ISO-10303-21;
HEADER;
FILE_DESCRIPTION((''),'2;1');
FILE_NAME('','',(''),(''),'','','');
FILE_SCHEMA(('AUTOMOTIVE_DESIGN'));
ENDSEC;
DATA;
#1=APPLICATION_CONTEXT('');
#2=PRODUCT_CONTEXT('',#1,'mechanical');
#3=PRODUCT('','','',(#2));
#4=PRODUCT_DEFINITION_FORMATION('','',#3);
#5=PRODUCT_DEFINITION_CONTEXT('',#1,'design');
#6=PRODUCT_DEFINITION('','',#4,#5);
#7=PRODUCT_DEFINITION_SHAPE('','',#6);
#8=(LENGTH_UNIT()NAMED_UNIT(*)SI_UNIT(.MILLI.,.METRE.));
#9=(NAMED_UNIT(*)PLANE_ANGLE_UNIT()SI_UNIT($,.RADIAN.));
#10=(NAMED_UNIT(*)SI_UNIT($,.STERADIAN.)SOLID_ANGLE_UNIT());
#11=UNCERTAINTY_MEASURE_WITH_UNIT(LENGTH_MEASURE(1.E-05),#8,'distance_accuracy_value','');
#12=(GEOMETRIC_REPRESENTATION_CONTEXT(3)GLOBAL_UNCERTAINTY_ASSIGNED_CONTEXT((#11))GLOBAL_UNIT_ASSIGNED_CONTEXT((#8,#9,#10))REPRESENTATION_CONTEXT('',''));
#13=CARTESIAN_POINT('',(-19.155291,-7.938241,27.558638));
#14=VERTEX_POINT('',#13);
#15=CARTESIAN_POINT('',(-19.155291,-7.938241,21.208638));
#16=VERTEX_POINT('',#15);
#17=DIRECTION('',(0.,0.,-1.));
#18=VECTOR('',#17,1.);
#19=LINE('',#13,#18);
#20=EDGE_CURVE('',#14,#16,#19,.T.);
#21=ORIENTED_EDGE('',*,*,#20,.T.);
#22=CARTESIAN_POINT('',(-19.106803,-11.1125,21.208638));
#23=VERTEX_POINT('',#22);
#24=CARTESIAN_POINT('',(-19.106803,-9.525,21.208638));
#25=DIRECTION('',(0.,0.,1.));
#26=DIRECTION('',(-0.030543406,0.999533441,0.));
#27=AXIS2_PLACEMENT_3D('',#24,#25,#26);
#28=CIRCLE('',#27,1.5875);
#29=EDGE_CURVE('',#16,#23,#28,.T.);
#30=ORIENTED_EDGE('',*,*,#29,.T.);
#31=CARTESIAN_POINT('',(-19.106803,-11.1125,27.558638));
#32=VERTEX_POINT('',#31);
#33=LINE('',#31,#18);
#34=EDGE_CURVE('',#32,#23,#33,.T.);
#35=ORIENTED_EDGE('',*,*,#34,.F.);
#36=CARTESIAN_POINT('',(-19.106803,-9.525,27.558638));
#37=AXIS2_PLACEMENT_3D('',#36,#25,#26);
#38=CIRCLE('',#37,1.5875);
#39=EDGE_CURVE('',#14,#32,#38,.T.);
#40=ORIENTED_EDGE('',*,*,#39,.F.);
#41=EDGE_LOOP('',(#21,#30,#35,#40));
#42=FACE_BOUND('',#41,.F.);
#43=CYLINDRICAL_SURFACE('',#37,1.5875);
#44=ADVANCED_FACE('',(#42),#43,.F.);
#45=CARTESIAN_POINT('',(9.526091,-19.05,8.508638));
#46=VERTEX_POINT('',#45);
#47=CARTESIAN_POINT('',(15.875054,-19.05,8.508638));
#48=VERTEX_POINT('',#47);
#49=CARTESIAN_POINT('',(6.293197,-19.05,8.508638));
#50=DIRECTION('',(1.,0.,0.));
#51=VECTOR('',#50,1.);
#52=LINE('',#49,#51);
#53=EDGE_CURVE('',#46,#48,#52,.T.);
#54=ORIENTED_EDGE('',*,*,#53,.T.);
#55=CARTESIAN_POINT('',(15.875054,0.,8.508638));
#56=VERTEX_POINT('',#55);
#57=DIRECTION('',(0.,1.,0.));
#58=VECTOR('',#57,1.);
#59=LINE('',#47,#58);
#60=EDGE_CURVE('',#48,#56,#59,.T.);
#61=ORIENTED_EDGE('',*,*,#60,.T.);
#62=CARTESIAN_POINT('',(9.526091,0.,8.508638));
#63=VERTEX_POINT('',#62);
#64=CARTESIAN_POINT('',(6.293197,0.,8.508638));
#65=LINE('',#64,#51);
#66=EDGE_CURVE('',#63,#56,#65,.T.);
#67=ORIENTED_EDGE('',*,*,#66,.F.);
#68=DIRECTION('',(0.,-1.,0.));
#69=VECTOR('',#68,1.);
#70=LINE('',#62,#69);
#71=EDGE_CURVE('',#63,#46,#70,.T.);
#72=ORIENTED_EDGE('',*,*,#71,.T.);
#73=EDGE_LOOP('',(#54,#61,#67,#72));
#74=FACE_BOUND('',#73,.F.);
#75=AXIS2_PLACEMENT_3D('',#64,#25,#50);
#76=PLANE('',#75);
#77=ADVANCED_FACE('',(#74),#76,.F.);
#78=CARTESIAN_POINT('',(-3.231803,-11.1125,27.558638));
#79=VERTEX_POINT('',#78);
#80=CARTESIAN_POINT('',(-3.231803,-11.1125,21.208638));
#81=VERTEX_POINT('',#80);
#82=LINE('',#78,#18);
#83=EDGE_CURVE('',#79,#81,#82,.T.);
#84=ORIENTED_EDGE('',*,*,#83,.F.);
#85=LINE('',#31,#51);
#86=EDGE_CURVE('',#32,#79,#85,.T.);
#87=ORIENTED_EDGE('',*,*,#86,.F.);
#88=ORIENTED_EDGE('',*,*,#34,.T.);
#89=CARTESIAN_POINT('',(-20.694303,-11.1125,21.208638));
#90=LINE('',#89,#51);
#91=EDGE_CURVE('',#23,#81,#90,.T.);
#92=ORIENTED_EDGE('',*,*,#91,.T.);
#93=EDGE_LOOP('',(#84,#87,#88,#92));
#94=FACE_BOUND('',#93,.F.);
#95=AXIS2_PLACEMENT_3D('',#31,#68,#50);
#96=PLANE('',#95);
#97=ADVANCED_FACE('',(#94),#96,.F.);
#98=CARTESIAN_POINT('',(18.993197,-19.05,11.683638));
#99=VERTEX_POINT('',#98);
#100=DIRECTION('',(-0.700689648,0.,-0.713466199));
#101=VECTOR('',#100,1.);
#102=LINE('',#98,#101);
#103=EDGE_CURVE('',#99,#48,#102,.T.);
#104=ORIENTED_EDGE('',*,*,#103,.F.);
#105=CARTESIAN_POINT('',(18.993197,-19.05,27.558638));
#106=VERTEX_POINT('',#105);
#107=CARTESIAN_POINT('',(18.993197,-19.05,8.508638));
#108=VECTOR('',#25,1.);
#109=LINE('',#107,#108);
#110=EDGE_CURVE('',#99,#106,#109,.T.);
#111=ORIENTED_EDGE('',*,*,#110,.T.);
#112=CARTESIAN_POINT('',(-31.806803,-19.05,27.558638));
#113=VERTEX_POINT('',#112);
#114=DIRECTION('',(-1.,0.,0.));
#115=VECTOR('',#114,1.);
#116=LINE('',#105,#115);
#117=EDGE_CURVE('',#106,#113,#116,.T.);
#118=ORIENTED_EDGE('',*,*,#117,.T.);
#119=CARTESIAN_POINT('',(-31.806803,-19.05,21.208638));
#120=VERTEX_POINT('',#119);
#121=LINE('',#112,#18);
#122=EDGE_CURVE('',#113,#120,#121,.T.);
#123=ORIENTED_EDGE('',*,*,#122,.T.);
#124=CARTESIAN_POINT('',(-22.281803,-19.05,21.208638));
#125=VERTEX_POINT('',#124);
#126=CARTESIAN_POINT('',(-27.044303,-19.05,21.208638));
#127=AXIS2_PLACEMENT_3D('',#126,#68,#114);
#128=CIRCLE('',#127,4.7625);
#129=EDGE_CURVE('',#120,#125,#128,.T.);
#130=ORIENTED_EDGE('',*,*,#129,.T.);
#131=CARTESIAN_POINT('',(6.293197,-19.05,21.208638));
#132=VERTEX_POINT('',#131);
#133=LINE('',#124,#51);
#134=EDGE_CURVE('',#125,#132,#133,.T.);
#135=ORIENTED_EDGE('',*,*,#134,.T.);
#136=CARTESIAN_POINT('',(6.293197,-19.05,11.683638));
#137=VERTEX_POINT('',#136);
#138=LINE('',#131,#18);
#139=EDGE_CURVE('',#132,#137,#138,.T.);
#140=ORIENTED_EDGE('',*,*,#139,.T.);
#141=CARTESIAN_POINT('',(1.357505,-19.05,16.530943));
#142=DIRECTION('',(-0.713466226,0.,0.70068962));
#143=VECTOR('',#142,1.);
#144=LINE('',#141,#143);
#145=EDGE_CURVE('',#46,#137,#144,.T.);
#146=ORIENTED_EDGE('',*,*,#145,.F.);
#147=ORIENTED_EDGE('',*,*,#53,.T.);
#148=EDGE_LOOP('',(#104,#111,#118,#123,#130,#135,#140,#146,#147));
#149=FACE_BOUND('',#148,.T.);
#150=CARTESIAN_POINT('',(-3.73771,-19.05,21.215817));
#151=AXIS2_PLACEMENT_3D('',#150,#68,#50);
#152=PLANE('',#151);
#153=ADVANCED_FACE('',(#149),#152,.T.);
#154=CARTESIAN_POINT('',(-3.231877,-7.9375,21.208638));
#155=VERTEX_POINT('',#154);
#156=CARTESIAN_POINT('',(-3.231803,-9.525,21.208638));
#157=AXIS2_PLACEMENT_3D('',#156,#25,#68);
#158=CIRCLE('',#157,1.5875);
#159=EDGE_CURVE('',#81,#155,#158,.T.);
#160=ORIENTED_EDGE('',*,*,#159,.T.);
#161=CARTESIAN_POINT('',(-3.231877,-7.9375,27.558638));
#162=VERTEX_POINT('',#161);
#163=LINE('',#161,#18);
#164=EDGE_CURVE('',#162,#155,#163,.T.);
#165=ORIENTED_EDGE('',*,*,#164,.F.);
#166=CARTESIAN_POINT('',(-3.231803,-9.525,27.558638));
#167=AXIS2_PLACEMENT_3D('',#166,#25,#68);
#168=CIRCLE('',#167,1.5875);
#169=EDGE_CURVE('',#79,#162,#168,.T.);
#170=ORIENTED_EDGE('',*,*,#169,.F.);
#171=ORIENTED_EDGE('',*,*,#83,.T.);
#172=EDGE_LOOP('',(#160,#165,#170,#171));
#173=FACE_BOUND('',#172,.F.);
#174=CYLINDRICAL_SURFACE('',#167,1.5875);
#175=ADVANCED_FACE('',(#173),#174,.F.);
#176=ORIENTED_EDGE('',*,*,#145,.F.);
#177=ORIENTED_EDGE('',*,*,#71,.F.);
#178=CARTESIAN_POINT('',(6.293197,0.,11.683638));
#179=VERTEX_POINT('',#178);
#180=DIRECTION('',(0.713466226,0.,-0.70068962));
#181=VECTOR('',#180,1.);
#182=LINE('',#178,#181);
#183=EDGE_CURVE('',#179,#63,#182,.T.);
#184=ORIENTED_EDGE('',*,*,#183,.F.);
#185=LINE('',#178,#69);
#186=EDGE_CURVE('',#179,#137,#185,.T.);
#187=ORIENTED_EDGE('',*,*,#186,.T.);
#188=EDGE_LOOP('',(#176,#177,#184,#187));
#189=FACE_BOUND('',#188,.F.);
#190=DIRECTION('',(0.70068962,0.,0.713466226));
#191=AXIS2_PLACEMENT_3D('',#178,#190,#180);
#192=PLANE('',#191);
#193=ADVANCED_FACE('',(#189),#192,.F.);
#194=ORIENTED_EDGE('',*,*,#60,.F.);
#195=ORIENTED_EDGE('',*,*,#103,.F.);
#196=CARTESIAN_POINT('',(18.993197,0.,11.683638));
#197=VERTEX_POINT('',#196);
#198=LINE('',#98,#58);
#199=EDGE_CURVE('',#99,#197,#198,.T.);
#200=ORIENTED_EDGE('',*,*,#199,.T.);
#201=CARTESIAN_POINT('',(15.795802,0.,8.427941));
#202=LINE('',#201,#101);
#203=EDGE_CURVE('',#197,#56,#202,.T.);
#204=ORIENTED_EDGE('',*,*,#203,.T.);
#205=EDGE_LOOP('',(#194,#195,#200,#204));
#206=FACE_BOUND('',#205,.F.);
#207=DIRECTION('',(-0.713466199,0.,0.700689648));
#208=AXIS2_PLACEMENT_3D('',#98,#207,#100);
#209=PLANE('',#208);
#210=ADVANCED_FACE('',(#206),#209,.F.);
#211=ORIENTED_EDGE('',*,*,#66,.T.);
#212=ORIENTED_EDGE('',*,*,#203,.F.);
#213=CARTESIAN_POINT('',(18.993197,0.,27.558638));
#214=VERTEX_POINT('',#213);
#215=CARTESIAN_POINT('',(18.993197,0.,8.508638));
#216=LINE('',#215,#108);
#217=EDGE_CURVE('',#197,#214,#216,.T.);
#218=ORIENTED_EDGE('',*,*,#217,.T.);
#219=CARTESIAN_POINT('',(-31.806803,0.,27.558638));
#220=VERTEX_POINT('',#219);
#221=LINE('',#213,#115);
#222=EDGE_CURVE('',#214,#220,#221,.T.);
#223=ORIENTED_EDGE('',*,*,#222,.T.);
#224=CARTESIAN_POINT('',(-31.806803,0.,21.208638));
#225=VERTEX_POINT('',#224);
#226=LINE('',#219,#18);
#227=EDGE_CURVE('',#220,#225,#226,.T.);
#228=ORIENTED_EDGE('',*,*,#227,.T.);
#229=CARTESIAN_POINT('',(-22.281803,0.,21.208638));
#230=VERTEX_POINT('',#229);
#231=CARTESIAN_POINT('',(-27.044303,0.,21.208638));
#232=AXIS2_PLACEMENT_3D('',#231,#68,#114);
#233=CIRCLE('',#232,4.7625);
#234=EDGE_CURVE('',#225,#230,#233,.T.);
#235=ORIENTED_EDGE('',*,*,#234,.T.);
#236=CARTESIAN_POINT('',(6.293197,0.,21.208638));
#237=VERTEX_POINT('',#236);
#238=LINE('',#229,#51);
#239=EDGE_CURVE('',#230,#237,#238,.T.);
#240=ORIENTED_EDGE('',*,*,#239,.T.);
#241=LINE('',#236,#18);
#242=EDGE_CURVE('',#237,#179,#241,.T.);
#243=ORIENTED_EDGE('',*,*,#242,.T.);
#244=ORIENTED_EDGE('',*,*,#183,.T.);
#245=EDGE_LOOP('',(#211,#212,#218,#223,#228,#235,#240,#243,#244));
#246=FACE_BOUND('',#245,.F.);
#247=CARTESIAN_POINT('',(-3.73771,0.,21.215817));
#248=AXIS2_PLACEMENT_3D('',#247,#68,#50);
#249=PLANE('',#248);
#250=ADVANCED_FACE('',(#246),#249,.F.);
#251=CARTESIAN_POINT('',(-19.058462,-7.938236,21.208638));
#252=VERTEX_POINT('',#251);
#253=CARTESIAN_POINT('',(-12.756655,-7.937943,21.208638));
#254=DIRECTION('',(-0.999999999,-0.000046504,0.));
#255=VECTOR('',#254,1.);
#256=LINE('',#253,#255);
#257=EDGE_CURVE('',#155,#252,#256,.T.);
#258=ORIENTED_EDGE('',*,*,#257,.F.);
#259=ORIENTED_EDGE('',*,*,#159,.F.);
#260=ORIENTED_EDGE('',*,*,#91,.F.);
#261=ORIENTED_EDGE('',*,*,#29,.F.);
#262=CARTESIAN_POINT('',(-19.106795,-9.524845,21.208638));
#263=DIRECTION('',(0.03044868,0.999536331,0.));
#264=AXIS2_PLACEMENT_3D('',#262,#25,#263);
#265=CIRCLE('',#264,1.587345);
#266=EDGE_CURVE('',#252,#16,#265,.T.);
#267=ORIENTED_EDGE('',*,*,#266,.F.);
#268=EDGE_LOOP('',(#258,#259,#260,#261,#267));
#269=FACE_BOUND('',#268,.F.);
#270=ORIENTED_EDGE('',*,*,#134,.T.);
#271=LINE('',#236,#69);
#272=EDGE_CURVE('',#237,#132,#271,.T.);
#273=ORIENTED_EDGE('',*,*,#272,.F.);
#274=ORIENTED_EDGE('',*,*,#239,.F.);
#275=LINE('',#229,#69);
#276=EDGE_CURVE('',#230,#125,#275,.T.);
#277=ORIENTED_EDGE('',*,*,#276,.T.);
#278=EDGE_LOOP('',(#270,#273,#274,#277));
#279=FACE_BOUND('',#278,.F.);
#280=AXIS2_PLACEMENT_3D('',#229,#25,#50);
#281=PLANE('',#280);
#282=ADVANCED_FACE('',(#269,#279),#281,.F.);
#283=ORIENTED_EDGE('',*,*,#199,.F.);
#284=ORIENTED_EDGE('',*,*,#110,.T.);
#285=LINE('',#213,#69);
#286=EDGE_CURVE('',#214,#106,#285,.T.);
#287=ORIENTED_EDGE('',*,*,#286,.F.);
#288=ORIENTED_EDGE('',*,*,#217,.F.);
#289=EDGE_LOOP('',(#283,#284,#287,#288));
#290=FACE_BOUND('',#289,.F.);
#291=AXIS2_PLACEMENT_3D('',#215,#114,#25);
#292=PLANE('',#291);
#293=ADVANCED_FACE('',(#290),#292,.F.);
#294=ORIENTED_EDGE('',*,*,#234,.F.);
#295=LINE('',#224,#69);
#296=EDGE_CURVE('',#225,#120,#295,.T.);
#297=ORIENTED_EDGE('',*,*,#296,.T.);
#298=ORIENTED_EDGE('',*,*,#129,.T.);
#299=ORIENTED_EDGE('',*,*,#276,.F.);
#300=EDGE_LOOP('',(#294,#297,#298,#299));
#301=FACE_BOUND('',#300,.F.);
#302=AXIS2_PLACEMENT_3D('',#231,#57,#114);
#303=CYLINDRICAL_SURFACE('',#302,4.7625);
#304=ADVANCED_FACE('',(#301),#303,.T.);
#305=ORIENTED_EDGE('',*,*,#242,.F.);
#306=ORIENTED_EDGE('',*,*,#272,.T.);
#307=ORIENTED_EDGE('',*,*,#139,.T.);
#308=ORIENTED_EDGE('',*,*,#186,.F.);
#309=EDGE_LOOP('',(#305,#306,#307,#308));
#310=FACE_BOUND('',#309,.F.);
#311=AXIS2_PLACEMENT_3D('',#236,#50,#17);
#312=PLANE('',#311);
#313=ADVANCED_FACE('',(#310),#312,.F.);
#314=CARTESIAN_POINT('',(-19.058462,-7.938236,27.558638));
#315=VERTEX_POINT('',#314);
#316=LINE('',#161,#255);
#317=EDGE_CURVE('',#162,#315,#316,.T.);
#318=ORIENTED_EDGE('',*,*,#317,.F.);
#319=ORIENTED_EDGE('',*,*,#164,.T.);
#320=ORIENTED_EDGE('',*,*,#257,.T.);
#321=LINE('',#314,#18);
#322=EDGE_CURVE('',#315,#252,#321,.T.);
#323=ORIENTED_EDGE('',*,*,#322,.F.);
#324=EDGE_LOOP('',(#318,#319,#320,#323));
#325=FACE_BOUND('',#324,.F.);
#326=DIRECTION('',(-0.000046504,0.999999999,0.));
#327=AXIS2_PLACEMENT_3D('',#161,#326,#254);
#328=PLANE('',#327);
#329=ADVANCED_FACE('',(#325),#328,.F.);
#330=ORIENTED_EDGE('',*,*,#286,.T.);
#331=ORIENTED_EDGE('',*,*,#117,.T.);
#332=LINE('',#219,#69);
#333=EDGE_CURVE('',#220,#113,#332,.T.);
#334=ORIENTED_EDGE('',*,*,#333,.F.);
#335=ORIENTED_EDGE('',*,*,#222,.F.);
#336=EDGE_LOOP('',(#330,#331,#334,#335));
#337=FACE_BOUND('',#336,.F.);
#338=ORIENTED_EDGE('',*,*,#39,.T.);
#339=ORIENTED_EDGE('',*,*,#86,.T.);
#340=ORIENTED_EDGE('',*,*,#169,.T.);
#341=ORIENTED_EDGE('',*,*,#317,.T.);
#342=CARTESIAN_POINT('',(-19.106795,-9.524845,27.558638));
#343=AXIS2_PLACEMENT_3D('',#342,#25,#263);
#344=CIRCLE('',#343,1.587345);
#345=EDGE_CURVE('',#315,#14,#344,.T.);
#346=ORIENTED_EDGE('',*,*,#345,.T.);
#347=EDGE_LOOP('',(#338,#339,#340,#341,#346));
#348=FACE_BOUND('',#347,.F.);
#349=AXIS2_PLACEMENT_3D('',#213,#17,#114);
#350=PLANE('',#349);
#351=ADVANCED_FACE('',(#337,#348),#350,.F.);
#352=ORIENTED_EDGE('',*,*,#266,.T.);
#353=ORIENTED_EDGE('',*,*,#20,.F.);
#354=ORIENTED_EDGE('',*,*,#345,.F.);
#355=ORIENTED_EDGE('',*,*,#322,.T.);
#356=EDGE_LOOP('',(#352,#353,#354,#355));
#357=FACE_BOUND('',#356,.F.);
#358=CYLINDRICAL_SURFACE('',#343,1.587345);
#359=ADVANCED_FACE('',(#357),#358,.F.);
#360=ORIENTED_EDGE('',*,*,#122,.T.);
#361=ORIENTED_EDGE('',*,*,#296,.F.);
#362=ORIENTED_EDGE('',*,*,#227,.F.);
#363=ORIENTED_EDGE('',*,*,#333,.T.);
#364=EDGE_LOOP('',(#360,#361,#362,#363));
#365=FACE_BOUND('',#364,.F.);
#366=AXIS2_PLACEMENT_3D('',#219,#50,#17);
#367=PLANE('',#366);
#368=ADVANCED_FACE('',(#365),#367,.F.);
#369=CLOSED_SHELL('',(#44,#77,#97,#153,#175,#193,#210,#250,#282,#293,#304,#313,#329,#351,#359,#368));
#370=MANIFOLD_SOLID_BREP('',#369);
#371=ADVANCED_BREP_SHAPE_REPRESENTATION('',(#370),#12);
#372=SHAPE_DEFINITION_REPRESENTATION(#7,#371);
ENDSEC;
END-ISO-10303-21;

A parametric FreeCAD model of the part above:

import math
import FreeCAD as App
import Part
import Sketcher
from FreeCAD import Vector
Q = App.Units.Quantity

doc = App.newDocument("Part")
body = doc.addObject("PartDesign::Body", "Body")

sketch1 = body.newObject("Sketcher::SketchObject", "Sketch")
sketch1.AttachmentSupport = (doc.getObject("XZ_Plane"), [""])
sketch1.MapMode = "FlatFace"
sketch1.addGeometry([
    Part.LineSegment(Vector(18.993197, 27.558638, 0), Vector(-31.806803, 27.558638, 0)),
    Part.LineSegment(Vector(-31.806803, 27.558638, 0), Vector(-31.806803, 21.208638, 0)),
    Part.ArcOfCircle(Part.Circle(Vector(-27.044303, 21.208638, 0), Vector(0, 0, 1), 4.7625), math.radians(180), math.radians(360)),
    Part.LineSegment(Vector(-22.281803, 21.208638, 0), Vector(6.293197, 21.208638, 0)),
    Part.LineSegment(Vector(6.293197, 21.208638, 0), Vector(6.293197, 8.508638, 0)),
    Part.LineSegment(Vector(6.293197, 8.508638, 0), Vector(18.993197, 8.508638, 0)),
    Part.LineSegment(Vector(18.993197, 8.508638, 0), Vector(18.993197, 27.558638, 0)),
], False)
sketch1.addConstraint([
    Sketcher.Constraint("Coincident", 0, 2, 1, 1),
    Sketcher.Constraint("Tangent", 1, 2, 2, 1),
    Sketcher.Constraint("Coincident", 2, 2, 3, 1),
    Sketcher.Constraint("Coincident", 3, 2, 4, 1),
    Sketcher.Constraint("Coincident", 4, 2, 5, 1),
    Sketcher.Constraint("Coincident", 5, 2, 6, 1),
    Sketcher.Constraint("Coincident", 6, 2, 0, 1),
    Sketcher.Constraint("Horizontal", 0),
    Sketcher.Constraint("Vertical", 1),
    Sketcher.Constraint("Horizontal", 3),
    Sketcher.Constraint("Vertical", 4),
    Sketcher.Constraint("Horizontal", 5),
    Sketcher.Constraint("Vertical", 6),
    Sketcher.Constraint("Horizontal", 1, 2, 2, 2),
    Sketcher.Constraint("Equal", 5, 4),
    Sketcher.Constraint("DistanceX", 0, 2, 0, 1, Q("2 in")),
    Sketcher.Constraint("DistanceX", 5, 1, 5, 2, Q("0.5 in")),
    Sketcher.Constraint("Radius", 2, Q("0.1875 in")),
    Sketcher.Constraint("DistanceY", 1, 2, 1, 1, Q("0.25 in")),
    Sketcher.Constraint("DistanceY", -1, 1, 2, 3, Q("21.208638 mm")),
    Sketcher.Constraint("DistanceX", 2, 3, -1, 1, Q("27.044303 mm")),
])
pad1 = body.newObject("PartDesign::Pad", "Pad")
pad1.Profile = sketch1
pad1.Length = Q("0.75 in")

sketch2 = body.newObject("Sketcher::SketchObject", "Sketch001")
sketch2.AttachmentSupport = (doc.getObject("XY_Plane"), [""])
sketch2.MapMode = "FlatFace"
sketch2.AttachmentOffset = App.Placement(Vector(0, 0, 27.558638), App.Rotation())
sketch2.addGeometry([
    Part.ArcOfCircle(Part.Circle(Vector(-19.106795, -9.524845, 0), Vector(0, 0, 1), 1.587345), math.radians(88.255149), math.radians(91.750768)),
    Part.ArcOfCircle(Part.Circle(Vector(-19.106803, -9.525, 0), Vector(0, 0, 1), 1.5875), math.radians(91.75028), math.radians(270.000013)),
    Part.LineSegment(Vector(-19.106803, -11.1125, 0), Vector(-3.231803, -11.1125, 0)),
    Part.ArcOfCircle(Part.Circle(Vector(-3.231803, -9.525, 0), Vector(0, 0, 1), 1.5875), math.radians(-90), math.radians(90.002671)),
    Part.LineSegment(Vector(-3.231877, -7.9375, 0), Vector(-19.058462, -7.938236, 0)),
], False)
sketch2.addConstraint([
    Sketcher.Constraint("Coincident", 0, 2, 1, 1),
    Sketcher.Constraint("Tangent", 1, 2, 2, 1),
    Sketcher.Constraint("Tangent", 2, 2, 3, 1),
    Sketcher.Constraint("Tangent", 3, 2, 4, 1),
    Sketcher.Constraint("Coincident", 4, 2, 0, 1),
    Sketcher.Constraint("Horizontal", 2),
    Sketcher.Constraint("Equal", 1, 3),
    Sketcher.Constraint("Radius", 1, Q("0.0625 in")),
    Sketcher.Constraint("DistanceX", 2, 1, 2, 2, Q("0.625 in")),
    Sketcher.Constraint("DistanceY", 1, 3, -1, 1, Q("0.375 in")),
    Sketcher.Constraint("Radius", 0, Q("1.587345 mm")),
    Sketcher.Constraint("DistanceX", 0, 2, -1, 1, Q("19.155291 mm")),
    Sketcher.Constraint("DistanceY", 0, 2, -1, 1, Q("7.938241 mm")),
    Sketcher.Constraint("DistanceX", 4, 2, -1, 1, Q("19.058462 mm")),
    Sketcher.Constraint("DistanceX", 0, 3, 3, 3, Q("15.874992 mm")),
])
pocket1 = body.newObject("PartDesign::Pocket", "Pocket")
pocket1.Profile = sketch2
pocket1.Length = 31.17521

sketch3 = body.newObject("Sketcher::SketchObject", "Sketch002")
sketch3.AttachmentSupport = (doc.getObject("XZ_Plane"), [""])
sketch3.MapMode = "FlatFace"
sketch3.addGeometry([
    Part.LineSegment(Vector(6.293197, 8.508638, 0), Vector(6.293197, 11.683638, 0)),
    Part.LineSegment(Vector(6.293197, 11.683638, 0), Vector(9.526091, 8.508638, 0)),
    Part.LineSegment(Vector(9.526091, 8.508638, 0), Vector(6.293197, 8.508638, 0)),
], False)
sketch3.addConstraint([
    Sketcher.Constraint("Coincident", 0, 2, 1, 1),
    Sketcher.Constraint("Coincident", 1, 2, 2, 1),
    Sketcher.Constraint("Coincident", 2, 2, 0, 1),
    Sketcher.Constraint("Vertical", 0),
    Sketcher.Constraint("Horizontal", 2),
    Sketcher.Constraint("DistanceY", 0, 1, 0, 2, Q("0.125 in")),
    Sketcher.Constraint("Distance", 1, Q("4.53125 mm")),
    Sketcher.Constraint("DistanceX", -1, 1, 1, 2, Q("9.526091 mm")),
    Sketcher.Constraint("DistanceY", -1, 1, 0, 2, Q("11.683638 mm")),
])
pocket2 = body.newObject("PartDesign::Pocket", "Pocket001")
pocket2.Profile = sketch3
pocket2.Length = 22.95972
pocket2.Reversed = True

sketch4 = body.newObject("Sketcher::SketchObject", "Sketch003")
sketch4.AttachmentSupport = (doc.getObject("XZ_Plane"), [""])
sketch4.MapMode = "FlatFace"
sketch4.AttachmentOffset = App.Placement(Vector(0, 0, 0.75 * 25.4), App.Rotation())
sketch4.addGeometry([
    Part.LineSegment(Vector(18.993197, 8.508638, 0), Vector(18.993197, 11.683638, 0)),
    Part.LineSegment(Vector(18.993197, 11.683638, 0), Vector(15.875054, 8.508638, 0)),
    Part.LineSegment(Vector(15.875054, 8.508638, 0), Vector(18.993197, 8.508638, 0)),
], False)
sketch4.addConstraint([
    Sketcher.Constraint("Coincident", 0, 2, 1, 1),
    Sketcher.Constraint("Coincident", 1, 2, 2, 1),
    Sketcher.Constraint("Coincident", 2, 2, 0, 1),
    Sketcher.Constraint("Vertical", 0),
    Sketcher.Constraint("Horizontal", 2),
    Sketcher.Constraint("DistanceY", 0, 1, 0, 2, Q("0.125 in")),
    Sketcher.Constraint("DistanceX", 2, 1, 2, 2, Q("3.118143 mm")),
    Sketcher.Constraint("DistanceX", -1, 1, 0, 2, Q("18.993197 mm")),
    Sketcher.Constraint("DistanceY", -1, 1, 0, 2, Q("11.683638 mm")),
])
pocket3 = body.newObject("PartDesign::Pocket", "Pocket002")
pocket3.Profile = sketch4
pocket3.Length = 30.07307

doc.recompute()
